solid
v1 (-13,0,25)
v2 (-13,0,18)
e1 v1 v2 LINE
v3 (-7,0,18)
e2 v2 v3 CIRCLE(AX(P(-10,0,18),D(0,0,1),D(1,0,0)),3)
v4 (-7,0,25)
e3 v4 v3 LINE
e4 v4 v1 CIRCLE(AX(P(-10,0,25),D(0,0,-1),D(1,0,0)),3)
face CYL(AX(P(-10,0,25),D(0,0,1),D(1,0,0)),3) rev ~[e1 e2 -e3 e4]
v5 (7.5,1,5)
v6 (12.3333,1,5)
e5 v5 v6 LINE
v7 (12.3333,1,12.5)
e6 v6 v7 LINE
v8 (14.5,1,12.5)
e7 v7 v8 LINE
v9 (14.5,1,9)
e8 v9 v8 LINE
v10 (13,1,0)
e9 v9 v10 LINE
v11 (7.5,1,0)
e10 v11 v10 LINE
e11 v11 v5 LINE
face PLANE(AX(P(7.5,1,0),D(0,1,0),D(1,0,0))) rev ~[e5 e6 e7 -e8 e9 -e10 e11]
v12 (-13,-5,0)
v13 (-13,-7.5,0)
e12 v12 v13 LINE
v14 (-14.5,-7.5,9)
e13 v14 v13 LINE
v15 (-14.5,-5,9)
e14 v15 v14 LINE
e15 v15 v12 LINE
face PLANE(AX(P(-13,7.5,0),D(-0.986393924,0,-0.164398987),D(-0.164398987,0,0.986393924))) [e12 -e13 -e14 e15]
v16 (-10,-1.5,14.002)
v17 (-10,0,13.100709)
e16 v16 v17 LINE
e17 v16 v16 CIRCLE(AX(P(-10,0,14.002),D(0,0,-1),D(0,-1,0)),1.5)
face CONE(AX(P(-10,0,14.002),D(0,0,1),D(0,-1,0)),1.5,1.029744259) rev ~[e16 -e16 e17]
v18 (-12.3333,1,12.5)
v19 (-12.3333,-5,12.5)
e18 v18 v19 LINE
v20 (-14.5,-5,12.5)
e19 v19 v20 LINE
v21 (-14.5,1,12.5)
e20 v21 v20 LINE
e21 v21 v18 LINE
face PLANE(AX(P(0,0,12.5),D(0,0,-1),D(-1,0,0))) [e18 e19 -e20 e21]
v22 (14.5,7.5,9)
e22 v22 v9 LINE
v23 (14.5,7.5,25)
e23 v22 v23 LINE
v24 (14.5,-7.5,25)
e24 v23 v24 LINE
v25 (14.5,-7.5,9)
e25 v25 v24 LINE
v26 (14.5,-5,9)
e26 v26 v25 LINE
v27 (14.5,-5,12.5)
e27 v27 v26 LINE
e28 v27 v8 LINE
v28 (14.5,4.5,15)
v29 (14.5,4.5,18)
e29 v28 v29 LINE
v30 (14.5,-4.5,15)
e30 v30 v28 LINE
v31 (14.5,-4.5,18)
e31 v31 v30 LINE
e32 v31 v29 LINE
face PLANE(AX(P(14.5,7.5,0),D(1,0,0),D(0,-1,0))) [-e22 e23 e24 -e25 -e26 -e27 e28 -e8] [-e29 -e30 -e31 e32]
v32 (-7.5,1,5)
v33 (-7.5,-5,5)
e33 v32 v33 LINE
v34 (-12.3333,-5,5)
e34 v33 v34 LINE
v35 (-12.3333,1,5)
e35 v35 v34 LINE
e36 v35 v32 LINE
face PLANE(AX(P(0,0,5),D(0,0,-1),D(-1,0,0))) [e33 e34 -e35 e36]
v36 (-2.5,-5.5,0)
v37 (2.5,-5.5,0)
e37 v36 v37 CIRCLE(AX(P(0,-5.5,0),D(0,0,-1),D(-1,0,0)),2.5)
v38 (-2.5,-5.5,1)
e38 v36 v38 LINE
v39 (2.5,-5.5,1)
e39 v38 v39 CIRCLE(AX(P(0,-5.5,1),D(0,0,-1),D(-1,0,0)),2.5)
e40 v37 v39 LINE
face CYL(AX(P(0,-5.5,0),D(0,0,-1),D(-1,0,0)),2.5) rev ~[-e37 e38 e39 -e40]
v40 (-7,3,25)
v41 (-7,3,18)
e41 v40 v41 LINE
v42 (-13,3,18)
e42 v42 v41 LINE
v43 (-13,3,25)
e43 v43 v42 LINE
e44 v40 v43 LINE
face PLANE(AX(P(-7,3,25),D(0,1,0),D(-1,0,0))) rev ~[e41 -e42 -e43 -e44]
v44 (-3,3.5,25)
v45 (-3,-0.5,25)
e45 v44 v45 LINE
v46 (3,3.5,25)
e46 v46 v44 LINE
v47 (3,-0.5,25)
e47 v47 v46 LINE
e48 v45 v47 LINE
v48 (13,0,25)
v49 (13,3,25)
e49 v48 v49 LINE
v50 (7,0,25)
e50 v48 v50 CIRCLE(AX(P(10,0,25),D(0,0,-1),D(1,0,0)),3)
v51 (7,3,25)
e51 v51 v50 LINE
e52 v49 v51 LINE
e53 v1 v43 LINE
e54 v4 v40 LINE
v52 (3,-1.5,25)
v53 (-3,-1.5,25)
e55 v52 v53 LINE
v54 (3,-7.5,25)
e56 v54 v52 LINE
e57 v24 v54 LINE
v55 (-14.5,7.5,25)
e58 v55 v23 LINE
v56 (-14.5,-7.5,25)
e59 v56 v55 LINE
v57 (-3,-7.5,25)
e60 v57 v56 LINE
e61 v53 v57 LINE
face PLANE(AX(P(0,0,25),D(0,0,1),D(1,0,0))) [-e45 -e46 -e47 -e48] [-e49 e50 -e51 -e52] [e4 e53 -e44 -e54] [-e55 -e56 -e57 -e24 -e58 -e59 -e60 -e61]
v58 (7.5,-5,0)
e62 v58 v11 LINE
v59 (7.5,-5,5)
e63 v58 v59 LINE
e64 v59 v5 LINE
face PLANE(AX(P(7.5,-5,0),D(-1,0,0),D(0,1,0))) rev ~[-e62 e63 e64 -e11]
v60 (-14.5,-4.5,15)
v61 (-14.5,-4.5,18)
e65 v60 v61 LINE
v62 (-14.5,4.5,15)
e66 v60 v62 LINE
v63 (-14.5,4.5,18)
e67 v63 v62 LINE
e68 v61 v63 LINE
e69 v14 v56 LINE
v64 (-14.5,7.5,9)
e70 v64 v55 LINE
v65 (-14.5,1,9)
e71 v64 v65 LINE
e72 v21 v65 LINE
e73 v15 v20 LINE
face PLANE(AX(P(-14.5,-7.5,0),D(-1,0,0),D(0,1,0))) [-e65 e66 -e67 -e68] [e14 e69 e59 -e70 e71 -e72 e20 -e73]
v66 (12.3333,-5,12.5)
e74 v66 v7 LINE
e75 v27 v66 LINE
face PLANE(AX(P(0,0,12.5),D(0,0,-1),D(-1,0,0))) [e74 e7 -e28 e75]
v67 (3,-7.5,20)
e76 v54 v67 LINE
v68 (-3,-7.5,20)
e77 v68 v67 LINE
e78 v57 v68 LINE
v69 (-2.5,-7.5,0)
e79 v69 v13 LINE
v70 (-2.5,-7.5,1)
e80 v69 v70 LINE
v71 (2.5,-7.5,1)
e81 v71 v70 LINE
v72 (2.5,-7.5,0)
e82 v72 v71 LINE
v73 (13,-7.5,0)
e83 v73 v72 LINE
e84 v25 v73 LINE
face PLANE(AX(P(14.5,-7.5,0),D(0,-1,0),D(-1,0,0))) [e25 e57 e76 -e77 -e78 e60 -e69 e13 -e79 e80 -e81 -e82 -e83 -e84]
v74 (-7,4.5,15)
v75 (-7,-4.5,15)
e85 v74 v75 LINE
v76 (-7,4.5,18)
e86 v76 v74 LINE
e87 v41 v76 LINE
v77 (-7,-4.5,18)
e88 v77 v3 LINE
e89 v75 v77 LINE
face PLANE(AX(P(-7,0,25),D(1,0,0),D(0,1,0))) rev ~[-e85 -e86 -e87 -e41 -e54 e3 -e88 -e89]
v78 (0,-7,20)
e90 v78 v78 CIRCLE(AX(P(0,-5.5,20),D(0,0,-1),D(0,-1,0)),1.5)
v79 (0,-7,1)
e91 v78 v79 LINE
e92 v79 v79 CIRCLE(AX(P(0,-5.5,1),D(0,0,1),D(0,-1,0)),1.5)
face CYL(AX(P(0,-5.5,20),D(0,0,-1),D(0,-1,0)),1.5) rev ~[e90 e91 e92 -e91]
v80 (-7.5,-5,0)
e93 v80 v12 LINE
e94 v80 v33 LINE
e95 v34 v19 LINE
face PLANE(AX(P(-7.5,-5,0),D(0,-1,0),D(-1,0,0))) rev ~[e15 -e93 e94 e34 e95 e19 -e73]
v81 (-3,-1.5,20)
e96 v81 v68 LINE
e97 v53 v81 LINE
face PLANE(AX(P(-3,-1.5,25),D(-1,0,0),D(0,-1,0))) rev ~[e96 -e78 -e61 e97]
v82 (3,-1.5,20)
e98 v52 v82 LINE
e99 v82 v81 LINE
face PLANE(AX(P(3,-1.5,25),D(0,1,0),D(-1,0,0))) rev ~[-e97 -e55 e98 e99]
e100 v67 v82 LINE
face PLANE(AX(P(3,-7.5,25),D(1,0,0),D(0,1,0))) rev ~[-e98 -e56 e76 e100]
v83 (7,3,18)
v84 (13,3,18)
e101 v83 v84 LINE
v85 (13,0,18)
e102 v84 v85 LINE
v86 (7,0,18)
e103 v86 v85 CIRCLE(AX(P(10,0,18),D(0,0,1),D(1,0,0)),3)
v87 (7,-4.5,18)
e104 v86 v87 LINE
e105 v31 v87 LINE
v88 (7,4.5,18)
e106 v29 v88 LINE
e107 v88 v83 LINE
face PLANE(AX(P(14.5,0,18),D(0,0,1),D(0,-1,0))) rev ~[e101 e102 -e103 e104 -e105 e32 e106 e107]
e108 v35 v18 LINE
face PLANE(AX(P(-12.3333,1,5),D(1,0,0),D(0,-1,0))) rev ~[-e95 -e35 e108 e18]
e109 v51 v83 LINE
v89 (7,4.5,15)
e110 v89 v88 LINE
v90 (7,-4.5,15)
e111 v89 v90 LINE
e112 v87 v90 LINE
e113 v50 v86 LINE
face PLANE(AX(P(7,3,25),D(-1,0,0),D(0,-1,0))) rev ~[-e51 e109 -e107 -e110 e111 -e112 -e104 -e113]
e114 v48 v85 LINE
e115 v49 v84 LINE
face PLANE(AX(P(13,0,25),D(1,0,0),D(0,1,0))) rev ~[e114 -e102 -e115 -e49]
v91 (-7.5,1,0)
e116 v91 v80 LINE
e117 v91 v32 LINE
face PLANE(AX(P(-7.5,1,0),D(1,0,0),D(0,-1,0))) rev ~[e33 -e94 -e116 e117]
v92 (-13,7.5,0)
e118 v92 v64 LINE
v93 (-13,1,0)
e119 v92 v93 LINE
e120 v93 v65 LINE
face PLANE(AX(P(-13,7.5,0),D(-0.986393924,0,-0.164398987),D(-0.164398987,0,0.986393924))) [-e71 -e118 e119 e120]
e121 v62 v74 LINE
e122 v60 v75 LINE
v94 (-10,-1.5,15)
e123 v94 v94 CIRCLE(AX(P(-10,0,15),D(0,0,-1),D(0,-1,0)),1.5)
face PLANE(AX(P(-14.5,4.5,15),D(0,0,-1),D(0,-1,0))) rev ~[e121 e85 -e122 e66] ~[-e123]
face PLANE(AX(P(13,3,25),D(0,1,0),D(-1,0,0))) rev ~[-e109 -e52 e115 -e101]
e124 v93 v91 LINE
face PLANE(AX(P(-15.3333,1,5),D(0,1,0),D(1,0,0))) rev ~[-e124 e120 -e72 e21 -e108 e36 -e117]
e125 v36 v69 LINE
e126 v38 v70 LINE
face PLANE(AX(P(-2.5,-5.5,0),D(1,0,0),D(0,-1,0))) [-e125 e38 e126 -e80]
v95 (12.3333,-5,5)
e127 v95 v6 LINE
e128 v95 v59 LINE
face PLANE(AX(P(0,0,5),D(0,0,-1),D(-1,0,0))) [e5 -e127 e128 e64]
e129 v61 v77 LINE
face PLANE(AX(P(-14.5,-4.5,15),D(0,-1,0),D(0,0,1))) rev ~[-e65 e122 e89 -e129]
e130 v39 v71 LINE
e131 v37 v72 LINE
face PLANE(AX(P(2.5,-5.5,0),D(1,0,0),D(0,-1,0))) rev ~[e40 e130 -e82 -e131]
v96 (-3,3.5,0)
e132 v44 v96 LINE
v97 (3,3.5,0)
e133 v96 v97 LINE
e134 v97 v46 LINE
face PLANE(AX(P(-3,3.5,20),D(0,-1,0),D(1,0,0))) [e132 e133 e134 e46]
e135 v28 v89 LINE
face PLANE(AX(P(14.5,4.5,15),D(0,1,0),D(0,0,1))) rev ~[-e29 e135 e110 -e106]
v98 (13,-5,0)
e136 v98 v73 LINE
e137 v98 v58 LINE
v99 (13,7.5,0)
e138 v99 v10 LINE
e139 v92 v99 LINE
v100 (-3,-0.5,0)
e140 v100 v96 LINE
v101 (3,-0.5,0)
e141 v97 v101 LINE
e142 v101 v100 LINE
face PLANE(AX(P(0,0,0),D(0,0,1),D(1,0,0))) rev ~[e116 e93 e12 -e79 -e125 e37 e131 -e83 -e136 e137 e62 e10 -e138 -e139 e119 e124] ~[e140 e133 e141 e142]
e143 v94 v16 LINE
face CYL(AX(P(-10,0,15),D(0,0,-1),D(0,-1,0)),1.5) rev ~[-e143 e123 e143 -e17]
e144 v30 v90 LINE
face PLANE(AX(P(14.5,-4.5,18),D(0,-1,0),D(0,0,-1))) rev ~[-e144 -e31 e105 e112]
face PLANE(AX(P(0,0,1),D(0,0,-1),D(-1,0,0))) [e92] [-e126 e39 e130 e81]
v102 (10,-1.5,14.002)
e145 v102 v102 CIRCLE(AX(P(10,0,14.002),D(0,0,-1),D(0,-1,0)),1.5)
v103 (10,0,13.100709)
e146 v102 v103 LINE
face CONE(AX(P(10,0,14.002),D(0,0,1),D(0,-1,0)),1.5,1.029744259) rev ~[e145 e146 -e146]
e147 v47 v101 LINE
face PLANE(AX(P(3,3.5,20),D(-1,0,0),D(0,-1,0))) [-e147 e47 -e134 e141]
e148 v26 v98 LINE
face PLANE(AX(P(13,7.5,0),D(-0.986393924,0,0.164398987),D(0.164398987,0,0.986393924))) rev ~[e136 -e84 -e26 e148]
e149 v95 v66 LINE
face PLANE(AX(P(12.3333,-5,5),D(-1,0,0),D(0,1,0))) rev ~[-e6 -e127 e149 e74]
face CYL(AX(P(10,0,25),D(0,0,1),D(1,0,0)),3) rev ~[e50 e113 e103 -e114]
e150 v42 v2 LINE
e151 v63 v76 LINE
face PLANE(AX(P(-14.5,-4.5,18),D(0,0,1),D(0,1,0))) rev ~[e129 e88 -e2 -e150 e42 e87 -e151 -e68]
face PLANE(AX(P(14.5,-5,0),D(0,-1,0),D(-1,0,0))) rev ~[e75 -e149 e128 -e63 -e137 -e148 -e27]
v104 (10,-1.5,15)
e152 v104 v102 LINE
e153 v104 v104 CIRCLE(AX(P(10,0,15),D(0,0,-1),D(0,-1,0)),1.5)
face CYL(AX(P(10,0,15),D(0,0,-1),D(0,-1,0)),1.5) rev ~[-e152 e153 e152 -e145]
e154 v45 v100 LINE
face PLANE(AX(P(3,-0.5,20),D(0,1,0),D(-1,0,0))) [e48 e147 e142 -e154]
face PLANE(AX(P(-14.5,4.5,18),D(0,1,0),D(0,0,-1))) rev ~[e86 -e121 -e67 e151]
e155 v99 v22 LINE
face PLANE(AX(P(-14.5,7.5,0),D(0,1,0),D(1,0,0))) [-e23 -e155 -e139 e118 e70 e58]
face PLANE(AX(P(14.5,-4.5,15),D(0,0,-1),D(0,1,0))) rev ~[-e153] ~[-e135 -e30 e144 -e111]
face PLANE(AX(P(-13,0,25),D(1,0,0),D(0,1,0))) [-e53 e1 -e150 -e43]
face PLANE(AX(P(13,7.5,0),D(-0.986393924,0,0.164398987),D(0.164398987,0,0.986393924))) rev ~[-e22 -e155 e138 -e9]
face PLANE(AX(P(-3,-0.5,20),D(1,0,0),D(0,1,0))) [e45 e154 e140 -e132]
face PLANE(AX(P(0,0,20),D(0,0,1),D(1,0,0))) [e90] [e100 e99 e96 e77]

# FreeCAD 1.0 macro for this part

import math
import FreeCAD as App
import Part
import Sketcher
from FreeCAD import Vector

doc = App.newDocument("Part")
params = doc.addObject("Spreadsheet::Sheet", "Params")
for row, (alias, value) in enumerate([
    ("sketch1_width", "29 mm"),
    ("sketch1_height", "15 mm"),
    ("pad1_length", "25 mm"),
    ("sketch2_height", "9 mm"),
    ("sketch2_width", "1.5 mm"),
    ("sketch3_radius", "3 mm"),
    ("sketch3_height", "3 mm"),
    ("pocket2_length", "10 mm"),
    ("sketch4_width", "9 mm"),
    ("sketch4_height", "3 mm"),
    ("pocket3_length", "7.5 mm"),
    ("sketch5_width", "9 mm"),
    ("sketch5_height", "3 mm"),
    ("pocket4_length", "7.5 mm"),
    ("sketch6_width", "6 mm"),
    ("sketch6_height", "4 mm"),
    ("pocket5_length", "5 mm"),
    ("sketch7_diameter", "3 mm"),
    ("hole_diameter", "3 mm"),
    ("sketch8_radius", "2.5 mm"),
    ("sketch8_diameter", "3 mm"),
    ("sketch8_height", "2 mm"),
    ("pocket6_length", "1 mm"),
    ("sketch9_width", "7 mm"),
    ("sketch9_height", "6 mm"),
    ("pocket7_length", "5 mm"),
    ("sketch10_width", "3 mm"),
    ("sketch10_height", "6 mm"),
    ("pocket8_length", "7.5 mm"),
    ("sketch11_diameter", "3 mm"),
    ("hole2_diameter", "3 mm"),
    ("hole2_depth", "0.998 mm"),
    ("sketch12_width", "6 mm"),
    ("sketch12_height", "4 mm"),
], start=1):
    params.set(f"A{row}", alias)
    params.set(f"B{row}", "=" + value)
    params.setAlias(f"B{row}", alias)

body = doc.addObject("PartDesign::Body", "Body")

# Sketch on XY plane
sketch1 = doc.addObject("Sketcher::SketchObject", "Sketch")
body.addObject(sketch1)
sketch1.AttachmentSupport = (doc.XY_Plane, [""])
sketch1.MapMode = "FlatFace"
sketch1.addGeometry([
    Part.LineSegment(Vector(14, 8, 0), Vector(-14, 8, 0)),
    Part.LineSegment(Vector(-14, 8, 0), Vector(-14, -8, 0)),
    Part.LineSegment(Vector(-14, -8, 0), Vector(14, -8, 0)),
    Part.LineSegment(Vector(14, -8, 0), Vector(14, 8, 0)),
], False)
sketch1.addConstraint([
    Sketcher.Constraint("Coincident", 0, 2, 1, 1),
    Sketcher.Constraint("Coincident", 1, 2, 2, 1),
    Sketcher.Constraint("Coincident", 2, 2, 3, 1),
    Sketcher.Constraint("Coincident", 3, 2, 0, 1),
    Sketcher.Constraint("Horizontal", 0),
    Sketcher.Constraint("Vertical", 1),
    Sketcher.Constraint("Horizontal", 2),
    Sketcher.Constraint("Vertical", 3),
    Sketcher.Constraint("Symmetric", 0, 2, 2, 2, -1, 1),
    Sketcher.Constraint("DistanceX", 0, 2, 0, 1, 29.0),
    Sketcher.Constraint("DistanceY", 1, 2, 1, 1, 15.0),
])
sketch1.setExpression("Constraints[9]", "Params.sketch1_width")
sketch1.setExpression("Constraints[10]", "Params.sketch1_height")
pad1 = doc.addObject("PartDesign::Pad", "Pad")
body.addObject(pad1)
pad1.Profile = sketch1
pad1.setExpression("Length", "Params.pad1_length")

# Sketch on XZ plane
sketch2 = doc.addObject("Sketcher::SketchObject", "Sketch001")
body.addObject(sketch2)
sketch2.AttachmentSupport = (doc.XZ_Plane, [""])
sketch2.MapMode = "FlatFace"
sketch2.AttachmentOffset = App.Placement(Vector(0, 0, -7.5), App.Rotation())
sketch2.addGeometry([
    Part.LineSegment(Vector(-13, 0, 0), Vector(-14.5, 0, 0)),  # 0
    Part.LineSegment(Vector(-14.5, 0, 0), Vector(-14.5, 9, 0)),  # 1
    Part.LineSegment(Vector(-14.5, 9, 0), Vector(-13, 0, 0)),  # 2
    Part.LineSegment(Vector(14.5, 0, 0), Vector(13, 0, 0)),  # 3
    Part.LineSegment(Vector(13, 0, 0), Vector(14.5, 9, 0)),  # 4
    Part.LineSegment(Vector(14.5, 9, 0), Vector(14.5, 0, 0)),  # 5
], False)
sketch2.addConstraint([
    Sketcher.Constraint("Coincident", 0, 2, 1, 1),
    Sketcher.Constraint("Coincident", 1, 2, 2, 1),
    Sketcher.Constraint("Coincident", 2, 2, 0, 1),
    Sketcher.Constraint("Coincident", 3, 2, 4, 1),
    Sketcher.Constraint("Coincident", 4, 2, 5, 1),
    Sketcher.Constraint("Coincident", 5, 2, 3, 1),
    Sketcher.Constraint("Horizontal", 0),
    Sketcher.Constraint("Vertical", 1),
    Sketcher.Constraint("Horizontal", 3),
    Sketcher.Constraint("Vertical", 5),
    Sketcher.Constraint("Symmetric", 2, 2, 3, 2, -1, 1),
    Sketcher.Constraint("Symmetric", 1, 2, 4, 2, -2),
    Sketcher.Constraint("PointOnObject", 0, 2, -1),
    Sketcher.Constraint("DistanceY", 1, 1, 1, 2, 9.0),
    Sketcher.Constraint("DistanceX", 2, 2, 3, 2, 26.0),
    Sketcher.Constraint("DistanceX", 0, 2, 0, 1, 1.5),
])
sketch2.setExpression("Constraints[13]", "Params.sketch2_height")
sketch2.setExpression("Constraints[15]", "Params.sketch2_width")
pocket1 = doc.addObject("PartDesign::Pocket", "Pocket")
body.addObject(pocket1)
pocket1.Profile = sketch2
pocket1.Type = "ThroughAll"
pocket1.Reversed = True

# Sketch on XY plane
sketch3 = doc.addObject("Sketcher::SketchObject", "Sketch002")
body.addObject(sketch3)
sketch3.AttachmentSupport = (doc.XY_Plane, [""])
sketch3.MapMode = "FlatFace"
sketch3.AttachmentOffset = App.Placement(Vector(0, 0, 25), App.Rotation())
sketch3.addGeometry([
    Part.LineSegment(Vector(13, 0, 0), Vector(13, 3, 0)),  # 0
    Part.LineSegment(Vector(13, 3, 0), Vector(7, 3, 0)),  # 1
    Part.LineSegment(Vector(7, 3, 0), Vector(7, 0, 0)),  # 2
    Part.ArcOfCircle(Part.Circle(Vector(10, 0, 0), Vector(0, 0, 1), 3), math.radians(180), math.radians(360)),  # 3
    Part.LineSegment(Vector(-7, 0, 0), Vector(-7, 3, 0)),  # 4
    Part.LineSegment(Vector(-7, 3, 0), Vector(-13, 3, 0)),  # 5
    Part.LineSegment(Vector(-13, 3, 0), Vector(-13, 0, 0)),  # 6
    Part.ArcOfCircle(Part.Circle(Vector(-10, 0, 0), Vector(0, 0, 1), 3), math.radians(180), math.radians(360)),  # 7
], False)
sketch3.addConstraint([
    Sketcher.Constraint("Coincident", 0, 2, 1, 1),
    Sketcher.Constraint("Coincident", 1, 2, 2, 1),
    Sketcher.Constraint("Tangent", 2, 2, 3, 1),
    Sketcher.Constraint("Tangent", 3, 2, 0, 1),
    Sketcher.Constraint("Coincident", 4, 2, 5, 1),
    Sketcher.Constraint("Coincident", 5, 2, 6, 1),
    Sketcher.Constraint("Tangent", 6, 2, 7, 1),
    Sketcher.Constraint("Tangent", 7, 2, 4, 1),
    Sketcher.Constraint("Vertical", 0),
    Sketcher.Constraint("Horizontal", 1),
    Sketcher.Constraint("Vertical", 2),
    Sketcher.Constraint("Vertical", 4),
    Sketcher.Constraint("Horizontal", 5),
    Sketcher.Constraint("Vertical", 6),
    Sketcher.Constraint("Equal", 3, 7),
    Sketcher.Constraint("Symmetric", 3, 3, 7, 3, -1, 1),
    Sketcher.Constraint("PointOnObject", 3, 3, -1),
    Sketcher.Constraint("Horizontal", 1, 2, 4, 2),
    Sketcher.Constraint("Radius", 3, 3.0),
    Sketcher.Constraint("DistanceX", -1, 1, 3, 3, 10.0),
    Sketcher.Constraint("DistanceY", 0, 1, 0, 2, 3.0),
])
sketch3.setExpression("Constraints[18]", "Params.sketch3_radius")
sketch3.setExpression("Constraints[20]", "Params.sketch3_height")
pocket2 = doc.addObject("PartDesign::Pocket", "Pocket001")
body.addObject(pocket2)
pocket2.Profile = sketch3
pocket2.setExpression("Length", "Params.pocket2_length")

# Sketch on YZ plane
sketch4 = doc.addObject("Sketcher::SketchObject", "Sketch003")
body.addObject(sketch4)
sketch4.AttachmentSupport = (doc.YZ_Plane, [""])
sketch4.MapMode = "FlatFace"
sketch4.AttachmentOffset = App.Placement(Vector(0, 0, -14.5), App.Rotation())
sketch4.addGeometry([
    Part.LineSegment(Vector(-4.5, 18, 0), Vector(4.5, 18, 0)),
    Part.LineSegment(Vector(4.5, 18, 0), Vector(4.5, 15, 0)),
    Part.LineSegment(Vector(4.5, 15, 0), Vector(-4.5, 15, 0)),
    Part.LineSegment(Vector(-4.5, 15, 0), Vector(-4.5, 18, 0)),
], False)
sketch4.addConstraint([
    Sketcher.Constraint("Coincident", 0, 2, 1, 1),
    Sketcher.Constraint("Coincident", 1, 2, 2, 1),
    Sketcher.Constraint("Coincident", 2, 2, 3, 1),
    Sketcher.Constraint("Coincident", 3, 2, 0, 1),
    Sketcher.Constraint("Horizontal", 0),
    Sketcher.Constraint("Vertical", 1),
    Sketcher.Constraint("Horizontal", 2),
    Sketcher.Constraint("Vertical", 3),
    Sketcher.Constraint("DistanceX", 0, 1, 0, 2, 9.0),
    Sketcher.Constraint("DistanceY", 1, 2, 1, 1, 3.0),
    Sketcher.Constraint("DistanceY", -1, 1, 0, 2, 18.0),
    Sketcher.Constraint("DistanceX", -1, 1, 0, 2, 4.5),
])
sketch4.setExpression("Constraints[8]", "Params.sketch4_width")
sketch4.setExpression("Constraints[9]", "Params.sketch4_height")
pocket3 = doc.addObject("PartDesign::Pocket", "Pocket002")
body.addObject(pocket3)
pocket3.Profile = sketch4
pocket3.setExpression("Length", "Params.pocket3_length")
pocket3.Reversed = True

# Sketch on YZ plane
sketch5 = doc.addObject("Sketcher::SketchObject", "Sketch004")
body.addObject(sketch5)
sketch5.AttachmentSupport = (doc.YZ_Plane, [""])
sketch5.MapMode = "FlatFace"
sketch5.AttachmentOffset = App.Placement(Vector(0, 0, 14.5), App.Rotation())
sketch5.addGeometry([
    Part.LineSegment(Vector(-4.5, 18, 0), Vector(-4.5, 15, 0)),
    Part.LineSegment(Vector(-4.5, 15, 0), Vector(4.5, 15, 0)),
    Part.LineSegment(Vector(4.5, 15, 0), Vector(4.5, 18, 0)),
    Part.LineSegment(Vector(4.5, 18, 0), Vector(-4.5, 18, 0)),
], False)
sketch5.addConstraint([
    Sketcher.Constraint("Coincident", 0, 2, 1, 1),
    Sketcher.Constraint("Coincident", 1, 2, 2, 1),
    Sketcher.Constraint("Coincident", 2, 2, 3, 1),
    Sketcher.Constraint("Coincident", 3, 2, 0, 1),
    Sketcher.Constraint("Vertical", 0),
    Sketcher.Constraint("Horizontal", 1),
    Sketcher.Constraint("Vertical", 2),
    Sketcher.Constraint("Horizontal", 3),
    Sketcher.Constraint("DistanceX", 1, 1, 1, 2, 9.0),
    Sketcher.Constraint("DistanceY", 0, 2, 0, 1, 3.0),
    Sketcher.Constraint("DistanceY", -1, 1, 0, 2, 15.0),
    Sketcher.Constraint("DistanceX", 0, 2, -1, 1, 4.5),
])
sketch5.setExpression("Constraints[8]", "Params.sketch5_width")
sketch5.setExpression("Constraints[9]", "Params.sketch5_height")
pocket4 = doc.addObject("PartDesign::Pocket", "Pocket003")
body.addObject(pocket4)
pocket4.Profile = sketch5
pocket4.setExpression("Length", "Params.pocket4_length")

# Sketch on XY plane
sketch6 = doc.addObject("Sketcher::SketchObject", "Sketch005")
body.addObject(sketch6)
sketch6.AttachmentSupport = (doc.XY_Plane, [""])
sketch6.MapMode = "FlatFace"
sketch6.AttachmentOffset = App.Placement(Vector(0, 0, 25), App.Rotation())
sketch6.addGeometry([
    Part.LineSegment(Vector(-3, -1.5, 0), Vector(-3, -7.5, 0)),  # 0
    Part.LineSegment(Vector(-3, -7.5, 0), Vector(3, -7.5, 0)),  # 1
    Part.LineSegment(Vector(3, -7.5, 0), Vector(3, -1.5, 0)),  # 2
    Part.LineSegment(Vector(3, -1.5, 0), Vector(-3, -1.5, 0)),  # 3
    Part.LineSegment(Vector(-3, 3.5, 0), Vector(-3, -0.5, 0)),  # 4
    Part.LineSegment(Vector(-3, -0.5, 0), Vector(3, -0.5, 0)),  # 5
    Part.LineSegment(Vector(3, -0.5, 0), Vector(3, 3.5, 0)),  # 6
    Part.LineSegment(Vector(3, 3.5, 0), Vector(-3, 3.5, 0)),  # 7
], False)
sketch6.addConstraint([
    Sketcher.Constraint("Coincident", 0, 2, 1, 1),
    Sketcher.Constraint("Coincident", 1, 2, 2, 1),
    Sketcher.Constraint("Coincident", 2, 2, 3, 1),
    Sketcher.Constraint("Coincident", 3, 2, 0, 1),
    Sketcher.Constraint("Coincident", 4, 2, 5, 1),
    Sketcher.Constraint("Coincident", 5, 2, 6, 1),
    Sketcher.Constraint("Coincident", 6, 2, 7, 1),
    Sketcher.Constraint("Coincident", 7, 2, 4, 1),
    Sketcher.Constraint("Vertical", 0),
    Sketcher.Constraint("Horizontal", 1),
    Sketcher.Constraint("Vertical", 2),
    Sketcher.Constraint("Horizontal", 3),
    Sketcher.Constraint("Vertical", 4),
    Sketcher.Constraint("Horizontal", 5),
    Sketcher.Constraint("Vertical", 6),
    Sketcher.Constraint("Horizontal", 7),
    Sketcher.Constraint("Vertical", 3, 2, 4, 2),
    Sketcher.Constraint("Vertical", 2, 2, 5, 2),
    Sketcher.Constraint("Equal", 7, 0),
    Sketcher.Constraint("DistanceX", 1, 1, 1, 2, 6.0),
    Sketcher.Constraint("DistanceY", 4, 2, 4, 1, 4.0),
    Sketcher.Constraint("DistanceX", 0, 2, -1, 1, 3.0),
    Sketcher.Constraint("DistanceY", 3, 2, 4, 2, 1.0),
    Sketcher.Constraint("DistanceY", 0, 2, -1, 1, 7.5),
])
sketch6.setExpression("Constraints[19]", "Params.sketch6_width")
sketch6.setExpression("Constraints[20]", "Params.sketch6_height")
pocket5 = doc.addObject("PartDesign::Pocket", "Pocket004")
body.addObject(pocket5)
pocket5.Profile = sketch6
pocket5.setExpression("Length", "Params.pocket5_length")

# Sketch on XY plane
sketch7 = doc.addObject("Sketcher::SketchObject", "Sketch006")
body.addObject(sketch7)
sketch7.AttachmentSupport = (doc.XY_Plane, [""])
sketch7.MapMode = "FlatFace"
sketch7.AttachmentOffset = App.Placement(Vector(0, 0, 20), App.Rotation())
sketch7.addGeometry(Part.Circle(Vector(0, -5.5, 0), Vector(0, 0, 1), 1.5), False)
sketch7.addConstraint([
    Sketcher.Constraint("PointOnObject", 0, 3, -2),
    Sketcher.Constraint("Diameter", 0, 3.0),
    Sketcher.Constraint("DistanceY", 0, 3, -1, 1, 5.5),
])
sketch7.setExpression("Constraints[1]", "Params.sketch7_diameter")
doc.recompute()
hole = doc.addObject("PartDesign::Hole", "Hole")
body.addObject(hole)
hole.Profile = sketch7
hole.ThreadType = "None"
hole.setExpression("Diameter", "Params.hole_diameter")
hole.DepthType = "ThroughAll"

# Sketch on XY plane
sketch8 = doc.addObject("Sketcher::SketchObject", "Sketch007")
body.addObject(sketch8)
sketch8.AttachmentSupport = (doc.XY_Plane, [""])
sketch8.MapMode = "FlatFace"
sketch8.addGeometry([
    Part.LineSegment(Vector(-2.5, -7.5, 0), Vector(-2.5, -5.5, 0)),  # 0
    Part.ArcOfCircle(Part.Circle(Vector(0, -5.5, 0), Vector(0, 0, 1), 2.5), math.radians(0), math.radians(180)),  # 1
    Part.LineSegment(Vector(2.5, -5.5, 0), Vector(2.5, -7.5, 0)),  # 2
    Part.LineSegment(Vector(2.5, -7.5, 0), Vector(-2.5, -7.5, 0)),  # 3
    Part.Circle(Vector(0, -5.5, 0), Vector(0, 0, 1), 1.5),  # 4
], False)
sketch8.addConstraint([
    Sketcher.Constraint("Tangent", 0, 2, 1, 2),
    Sketcher.Constraint("Tangent", 1, 1, 2, 1),
    Sketcher.Constraint("Coincident", 2, 2, 3, 1),
    Sketcher.Constraint("Coincident", 3, 2, 0, 1),
    Sketcher.Constraint("Vertical", 0),
    Sketcher.Constraint("Vertical", 2),
    Sketcher.Constraint("Horizontal", 3),
    Sketcher.Constraint("Coincident", 4, 3, 1, 3),
    Sketcher.Constraint("PointOnObject", 1, 3, -2),
    Sketcher.Constraint("Radius", 1, 2.5),
    Sketcher.Constraint("Diameter", 4, 3.0),
    Sketcher.Constraint("DistanceY", 0, 1, 0, 2, 2.0),
    Sketcher.Constraint("DistanceY", 1, 3, -1, 1, 5.5),
])
sketch8.setExpression("Constraints[9]", "Params.sketch8_radius")
sketch8.setExpression("Constraints[10]", "Params.sketch8_diameter")
sketch8.setExpression("Constraints[11]", "Params.sketch8_height")
pocket6 = doc.addObject("PartDesign::Pocket", "Pocket005")
body.addObject(pocket6)
pocket6.Profile = sketch8
pocket6.setExpression("Length", "Params.pocket6_length")
pocket6.Reversed = True

# Sketch on XY plane
sketch9 = doc.addObject("Sketcher::SketchObject", "Sketch008")
body.addObject(sketch9)
sketch9.AttachmentSupport = (doc.XY_Plane, [""])
sketch9.MapMode = "FlatFace"
sketch9.addGeometry([
    Part.LineSegment(Vector(-14, -5, 0), Vector(-14, 1, 0)),  # 0
    Part.LineSegment(Vector(-14, 1, 0), Vector(-8, 1, 0)),  # 1
    Part.LineSegment(Vector(-8, 1, 0), Vector(-8, -5, 0)),  # 2
    Part.LineSegment(Vector(-8, -5, 0), Vector(-14, -5, 0)),  # 3
    Part.LineSegment(Vector(8, -5, 0), Vector(8, 1, 0)),  # 4
    Part.LineSegment(Vector(8, 1, 0), Vector(14, 1, 0)),  # 5
    Part.LineSegment(Vector(14, 1, 0), Vector(14, -5, 0)),  # 6
    Part.LineSegment(Vector(14, -5, 0), Vector(8, -5, 0)),  # 7
], False)
sketch9.addConstraint([
    Sketcher.Constraint("Coincident", 0, 2, 1, 1),
    Sketcher.Constraint("Coincident", 1, 2, 2, 1),
    Sketcher.Constraint("Coincident", 2, 2, 3, 1),
    Sketcher.Constraint("Coincident", 3, 2, 0, 1),
    Sketcher.Constraint("Coincident", 4, 2, 5, 1),
    Sketcher.Constraint("Coincident", 5, 2, 6, 1),
    Sketcher.Constraint("Coincident", 6, 2, 7, 1),
    Sketcher.Constraint("Coincident", 7, 2, 4, 1),
    Sketcher.Constraint("Vertical", 0),
    Sketcher.Constraint("Horizontal", 1),
    Sketcher.Constraint("Vertical", 2),
    Sketcher.Constraint("Horizontal", 3),
    Sketcher.Constraint("Vertical", 4),
    Sketcher.Constraint("Horizontal", 5),
    Sketcher.Constraint("Vertical", 6),
    Sketcher.Constraint("Horizontal", 7),
    Sketcher.Constraint("Symmetric", 1, 2, 4, 2, -2),
    Sketcher.Constraint("Symmetric", 3, 2, 6, 2, -2),
    Sketcher.Constraint("DistanceX", 1, 1, 1, 2, 7.0),
    Sketcher.Constraint("DistanceY", 0, 1, 0, 2, 6.0),
    Sketcher.Constraint("DistanceY", -1, 1, 0, 2, 1.0),
    Sketcher.Constraint("DistanceX", 1, 2, 4, 2, 15.0),
])
sketch9.setExpression("Constraints[18]", "Params.sketch9_width")
sketch9.setExpression("Constraints[19]", "Params.sketch9_height")
pocket7 = doc.addObject("PartDesign::Pocket", "Pocket006")
body.addObject(pocket7)
pocket7.Profile = sketch9
pocket7.setExpression("Length", "Params.pocket7_length")
pocket7.Reversed = True

# Sketch on XY plane
sketch10 = doc.addObject("Sketcher::SketchObject", "Sketch009")
body.addObject(sketch10)
sketch10.AttachmentSupport = (doc.XY_Plane, [""])
sketch10.MapMode = "FlatFace"
sketch10.AttachmentOffset = App.Placement(Vector(0, 0, 5), App.Rotation())
sketch10.addGeometry([
    Part.LineSegment(Vector(-15.3, -5, 0), Vector(-15.3, 1, 0)),  # 0
    Part.LineSegment(Vector(-15.3, 1, 0), Vector(-12.3, 1, 0)),  # 1
    Part.LineSegment(Vector(-12.3, 1, 0), Vector(-12.3, -5, 0)),  # 2
    Part.LineSegment(Vector(-12.3, -5, 0), Vector(-15.3, -5, 0)),  # 3
    Part.LineSegment(Vector(12.3, -5, 0), Vector(12.3, 1, 0)),  # 4
    Part.LineSegment(Vector(12.3, 1, 0), Vector(15.3, 1, 0)),  # 5
    Part.LineSegment(Vector(15.3, 1, 0), Vector(15.3, -5, 0)),  # 6
    Part.LineSegment(Vector(15.3, -5, 0), Vector(12.3, -5, 0)),  # 7
], False)
sketch10.addConstraint([
    Sketcher.Constraint("Coincident", 0, 2, 1, 1),
    Sketcher.Constraint("Coincident", 1, 2, 2, 1),
    Sketcher.Constraint("Coincident", 2, 2, 3, 1),
    Sketcher.Constraint("Coincident", 3, 2, 0, 1),
    Sketcher.Constraint("Coincident", 4, 2, 5, 1),
    Sketcher.Constraint("Coincident", 5, 2, 6, 1),
    Sketcher.Constraint("Coincident", 6, 2, 7, 1),
    Sketcher.Constraint("Coincident", 7, 2, 4, 1),
    Sketcher.Constraint("Vertical", 0),
    Sketcher.Constraint("Horizontal", 1),
    Sketcher.Constraint("Vertical", 2),
    Sketcher.Constraint("Horizontal", 3),
    Sketcher.Constraint("Vertical", 4),
    Sketcher.Constraint("Horizontal", 5),
    Sketcher.Constraint("Vertical", 6),
    Sketcher.Constraint("Horizontal", 7),
    Sketcher.Constraint("Symmetric", 1, 2, 4, 2, -2),
    Sketcher.Constraint("Symmetric", 3, 2, 6, 2, -2),
    Sketcher.Constraint("DistanceX", 1, 1, 1, 2, 3.0),
    Sketcher.Constraint("DistanceY", 0, 1, 0, 2, 6.0),
    Sketcher.Constraint("DistanceY", -1, 1, 0, 2, 1.0),
    Sketcher.Constraint("DistanceX", 0, 2, -1, 1, 15.3333),
])
sketch10.setExpression("Constraints[18]", "Params.sketch10_width")
sketch10.setExpression("Constraints[19]", "Params.sketch10_height")
pocket8 = doc.addObject("PartDesign::Pocket", "Pocket007")
body.addObject(pocket8)
pocket8.Profile = sketch10
pocket8.setExpression("Length", "Params.pocket8_length")
pocket8.Reversed = True

# Sketch on XY plane
sketch11 = doc.addObject("Sketcher::SketchObject", "Sketch010")
body.addObject(sketch11)
sketch11.AttachmentSupport = (doc.XY_Plane, [""])
sketch11.MapMode = "FlatFace"
sketch11.AttachmentOffset = App.Placement(Vector(0, 0, 15), App.Rotation())
sketch11.addGeometry([
    Part.Circle(Vector(10, 0, 0), Vector(0, 0, 1), 1.5),
    Part.Circle(Vector(-10, 0, 0), Vector(0, 0, 1), 1.5),
], False)
sketch11.addConstraint([
    Sketcher.Constraint("Equal", 0, 1),
    Sketcher.Constraint("Symmetric", 0, 3, 1, 3, -1, 1),
    Sketcher.Constraint("PointOnObject", 0, 3, -1),
    Sketcher.Constraint("Diameter", 0, 3.0),
    Sketcher.Constraint("DistanceX", -1, 1, 0, 3, 10.0),
])
sketch11.setExpression("Constraints[3]", "Params.sketch11_diameter")
doc.recompute()
hole2 = doc.addObject("PartDesign::Hole", "Hole001")
body.addObject(hole2)
hole2.Profile = sketch11
hole2.ThreadType = "None"
hole2.setExpression("Diameter", "Params.hole2_diameter")
hole2.DepthType = "Dimension"
hole2.setExpression("Depth", "Params.hole2_depth")
hole2.DrillPoint = "Angled"
hole2.DrillPointAngle = 118

# Sketch on XY plane
sketch12 = doc.addObject("Sketcher::SketchObject", "Sketch011")
body.addObject(sketch12)
sketch12.AttachmentSupport = (doc.XY_Plane, [""])
sketch12.MapMode = "FlatFace"
sketch12.AttachmentOffset = App.Placement(Vector(0, 0, 20), App.Rotation())
sketch12.addGeometry([
    Part.LineSegment(Vector(3, -0.5, 0), Vector(3, 3.5, 0)),
    Part.LineSegment(Vector(3, 3.5, 0), Vector(-3, 3.5, 0)),
    Part.LineSegment(Vector(-3, 3.5, 0), Vector(-3, -0.5, 0)),
    Part.LineSegment(Vector(-3, -0.5, 0), Vector(3, -0.5, 0)),
], False)
sketch12.addConstraint([
    Sketcher.Constraint("Coincident", 0, 2, 1, 1),
    Sketcher.Constraint("Coincident", 1, 2, 2, 1),
    Sketcher.Constraint("Coincident", 2, 2, 3, 1),
    Sketcher.Constraint("Coincident", 3, 2, 0, 1),
    Sketcher.Constraint("Vertical", 0),
    Sketcher.Constraint("Horizontal", 1),
    Sketcher.Constraint("Vertical", 2),
    Sketcher.Constraint("Horizontal", 3),
    Sketcher.Constraint("DistanceX", 1, 2, 1, 1, 6.0),
    Sketcher.Constraint("DistanceY", 0, 1, 0, 2, 4.0),
    Sketcher.Constraint("DistanceX", -1, 1, 0, 2, 3.0),
    Sketcher.Constraint("DistanceY", -1, 1, 0, 2, 3.5),
])
sketch12.setExpression("Constraints[8]", "Params.sketch12_width")
sketch12.setExpression("Constraints[9]", "Params.sketch12_height")
pocket9 = doc.addObject("PartDesign::Pocket", "Pocket008")
body.addObject(pocket9)
pocket9.Profile = sketch12
pocket9.Type = "ThroughAll"

doc.recompute()
